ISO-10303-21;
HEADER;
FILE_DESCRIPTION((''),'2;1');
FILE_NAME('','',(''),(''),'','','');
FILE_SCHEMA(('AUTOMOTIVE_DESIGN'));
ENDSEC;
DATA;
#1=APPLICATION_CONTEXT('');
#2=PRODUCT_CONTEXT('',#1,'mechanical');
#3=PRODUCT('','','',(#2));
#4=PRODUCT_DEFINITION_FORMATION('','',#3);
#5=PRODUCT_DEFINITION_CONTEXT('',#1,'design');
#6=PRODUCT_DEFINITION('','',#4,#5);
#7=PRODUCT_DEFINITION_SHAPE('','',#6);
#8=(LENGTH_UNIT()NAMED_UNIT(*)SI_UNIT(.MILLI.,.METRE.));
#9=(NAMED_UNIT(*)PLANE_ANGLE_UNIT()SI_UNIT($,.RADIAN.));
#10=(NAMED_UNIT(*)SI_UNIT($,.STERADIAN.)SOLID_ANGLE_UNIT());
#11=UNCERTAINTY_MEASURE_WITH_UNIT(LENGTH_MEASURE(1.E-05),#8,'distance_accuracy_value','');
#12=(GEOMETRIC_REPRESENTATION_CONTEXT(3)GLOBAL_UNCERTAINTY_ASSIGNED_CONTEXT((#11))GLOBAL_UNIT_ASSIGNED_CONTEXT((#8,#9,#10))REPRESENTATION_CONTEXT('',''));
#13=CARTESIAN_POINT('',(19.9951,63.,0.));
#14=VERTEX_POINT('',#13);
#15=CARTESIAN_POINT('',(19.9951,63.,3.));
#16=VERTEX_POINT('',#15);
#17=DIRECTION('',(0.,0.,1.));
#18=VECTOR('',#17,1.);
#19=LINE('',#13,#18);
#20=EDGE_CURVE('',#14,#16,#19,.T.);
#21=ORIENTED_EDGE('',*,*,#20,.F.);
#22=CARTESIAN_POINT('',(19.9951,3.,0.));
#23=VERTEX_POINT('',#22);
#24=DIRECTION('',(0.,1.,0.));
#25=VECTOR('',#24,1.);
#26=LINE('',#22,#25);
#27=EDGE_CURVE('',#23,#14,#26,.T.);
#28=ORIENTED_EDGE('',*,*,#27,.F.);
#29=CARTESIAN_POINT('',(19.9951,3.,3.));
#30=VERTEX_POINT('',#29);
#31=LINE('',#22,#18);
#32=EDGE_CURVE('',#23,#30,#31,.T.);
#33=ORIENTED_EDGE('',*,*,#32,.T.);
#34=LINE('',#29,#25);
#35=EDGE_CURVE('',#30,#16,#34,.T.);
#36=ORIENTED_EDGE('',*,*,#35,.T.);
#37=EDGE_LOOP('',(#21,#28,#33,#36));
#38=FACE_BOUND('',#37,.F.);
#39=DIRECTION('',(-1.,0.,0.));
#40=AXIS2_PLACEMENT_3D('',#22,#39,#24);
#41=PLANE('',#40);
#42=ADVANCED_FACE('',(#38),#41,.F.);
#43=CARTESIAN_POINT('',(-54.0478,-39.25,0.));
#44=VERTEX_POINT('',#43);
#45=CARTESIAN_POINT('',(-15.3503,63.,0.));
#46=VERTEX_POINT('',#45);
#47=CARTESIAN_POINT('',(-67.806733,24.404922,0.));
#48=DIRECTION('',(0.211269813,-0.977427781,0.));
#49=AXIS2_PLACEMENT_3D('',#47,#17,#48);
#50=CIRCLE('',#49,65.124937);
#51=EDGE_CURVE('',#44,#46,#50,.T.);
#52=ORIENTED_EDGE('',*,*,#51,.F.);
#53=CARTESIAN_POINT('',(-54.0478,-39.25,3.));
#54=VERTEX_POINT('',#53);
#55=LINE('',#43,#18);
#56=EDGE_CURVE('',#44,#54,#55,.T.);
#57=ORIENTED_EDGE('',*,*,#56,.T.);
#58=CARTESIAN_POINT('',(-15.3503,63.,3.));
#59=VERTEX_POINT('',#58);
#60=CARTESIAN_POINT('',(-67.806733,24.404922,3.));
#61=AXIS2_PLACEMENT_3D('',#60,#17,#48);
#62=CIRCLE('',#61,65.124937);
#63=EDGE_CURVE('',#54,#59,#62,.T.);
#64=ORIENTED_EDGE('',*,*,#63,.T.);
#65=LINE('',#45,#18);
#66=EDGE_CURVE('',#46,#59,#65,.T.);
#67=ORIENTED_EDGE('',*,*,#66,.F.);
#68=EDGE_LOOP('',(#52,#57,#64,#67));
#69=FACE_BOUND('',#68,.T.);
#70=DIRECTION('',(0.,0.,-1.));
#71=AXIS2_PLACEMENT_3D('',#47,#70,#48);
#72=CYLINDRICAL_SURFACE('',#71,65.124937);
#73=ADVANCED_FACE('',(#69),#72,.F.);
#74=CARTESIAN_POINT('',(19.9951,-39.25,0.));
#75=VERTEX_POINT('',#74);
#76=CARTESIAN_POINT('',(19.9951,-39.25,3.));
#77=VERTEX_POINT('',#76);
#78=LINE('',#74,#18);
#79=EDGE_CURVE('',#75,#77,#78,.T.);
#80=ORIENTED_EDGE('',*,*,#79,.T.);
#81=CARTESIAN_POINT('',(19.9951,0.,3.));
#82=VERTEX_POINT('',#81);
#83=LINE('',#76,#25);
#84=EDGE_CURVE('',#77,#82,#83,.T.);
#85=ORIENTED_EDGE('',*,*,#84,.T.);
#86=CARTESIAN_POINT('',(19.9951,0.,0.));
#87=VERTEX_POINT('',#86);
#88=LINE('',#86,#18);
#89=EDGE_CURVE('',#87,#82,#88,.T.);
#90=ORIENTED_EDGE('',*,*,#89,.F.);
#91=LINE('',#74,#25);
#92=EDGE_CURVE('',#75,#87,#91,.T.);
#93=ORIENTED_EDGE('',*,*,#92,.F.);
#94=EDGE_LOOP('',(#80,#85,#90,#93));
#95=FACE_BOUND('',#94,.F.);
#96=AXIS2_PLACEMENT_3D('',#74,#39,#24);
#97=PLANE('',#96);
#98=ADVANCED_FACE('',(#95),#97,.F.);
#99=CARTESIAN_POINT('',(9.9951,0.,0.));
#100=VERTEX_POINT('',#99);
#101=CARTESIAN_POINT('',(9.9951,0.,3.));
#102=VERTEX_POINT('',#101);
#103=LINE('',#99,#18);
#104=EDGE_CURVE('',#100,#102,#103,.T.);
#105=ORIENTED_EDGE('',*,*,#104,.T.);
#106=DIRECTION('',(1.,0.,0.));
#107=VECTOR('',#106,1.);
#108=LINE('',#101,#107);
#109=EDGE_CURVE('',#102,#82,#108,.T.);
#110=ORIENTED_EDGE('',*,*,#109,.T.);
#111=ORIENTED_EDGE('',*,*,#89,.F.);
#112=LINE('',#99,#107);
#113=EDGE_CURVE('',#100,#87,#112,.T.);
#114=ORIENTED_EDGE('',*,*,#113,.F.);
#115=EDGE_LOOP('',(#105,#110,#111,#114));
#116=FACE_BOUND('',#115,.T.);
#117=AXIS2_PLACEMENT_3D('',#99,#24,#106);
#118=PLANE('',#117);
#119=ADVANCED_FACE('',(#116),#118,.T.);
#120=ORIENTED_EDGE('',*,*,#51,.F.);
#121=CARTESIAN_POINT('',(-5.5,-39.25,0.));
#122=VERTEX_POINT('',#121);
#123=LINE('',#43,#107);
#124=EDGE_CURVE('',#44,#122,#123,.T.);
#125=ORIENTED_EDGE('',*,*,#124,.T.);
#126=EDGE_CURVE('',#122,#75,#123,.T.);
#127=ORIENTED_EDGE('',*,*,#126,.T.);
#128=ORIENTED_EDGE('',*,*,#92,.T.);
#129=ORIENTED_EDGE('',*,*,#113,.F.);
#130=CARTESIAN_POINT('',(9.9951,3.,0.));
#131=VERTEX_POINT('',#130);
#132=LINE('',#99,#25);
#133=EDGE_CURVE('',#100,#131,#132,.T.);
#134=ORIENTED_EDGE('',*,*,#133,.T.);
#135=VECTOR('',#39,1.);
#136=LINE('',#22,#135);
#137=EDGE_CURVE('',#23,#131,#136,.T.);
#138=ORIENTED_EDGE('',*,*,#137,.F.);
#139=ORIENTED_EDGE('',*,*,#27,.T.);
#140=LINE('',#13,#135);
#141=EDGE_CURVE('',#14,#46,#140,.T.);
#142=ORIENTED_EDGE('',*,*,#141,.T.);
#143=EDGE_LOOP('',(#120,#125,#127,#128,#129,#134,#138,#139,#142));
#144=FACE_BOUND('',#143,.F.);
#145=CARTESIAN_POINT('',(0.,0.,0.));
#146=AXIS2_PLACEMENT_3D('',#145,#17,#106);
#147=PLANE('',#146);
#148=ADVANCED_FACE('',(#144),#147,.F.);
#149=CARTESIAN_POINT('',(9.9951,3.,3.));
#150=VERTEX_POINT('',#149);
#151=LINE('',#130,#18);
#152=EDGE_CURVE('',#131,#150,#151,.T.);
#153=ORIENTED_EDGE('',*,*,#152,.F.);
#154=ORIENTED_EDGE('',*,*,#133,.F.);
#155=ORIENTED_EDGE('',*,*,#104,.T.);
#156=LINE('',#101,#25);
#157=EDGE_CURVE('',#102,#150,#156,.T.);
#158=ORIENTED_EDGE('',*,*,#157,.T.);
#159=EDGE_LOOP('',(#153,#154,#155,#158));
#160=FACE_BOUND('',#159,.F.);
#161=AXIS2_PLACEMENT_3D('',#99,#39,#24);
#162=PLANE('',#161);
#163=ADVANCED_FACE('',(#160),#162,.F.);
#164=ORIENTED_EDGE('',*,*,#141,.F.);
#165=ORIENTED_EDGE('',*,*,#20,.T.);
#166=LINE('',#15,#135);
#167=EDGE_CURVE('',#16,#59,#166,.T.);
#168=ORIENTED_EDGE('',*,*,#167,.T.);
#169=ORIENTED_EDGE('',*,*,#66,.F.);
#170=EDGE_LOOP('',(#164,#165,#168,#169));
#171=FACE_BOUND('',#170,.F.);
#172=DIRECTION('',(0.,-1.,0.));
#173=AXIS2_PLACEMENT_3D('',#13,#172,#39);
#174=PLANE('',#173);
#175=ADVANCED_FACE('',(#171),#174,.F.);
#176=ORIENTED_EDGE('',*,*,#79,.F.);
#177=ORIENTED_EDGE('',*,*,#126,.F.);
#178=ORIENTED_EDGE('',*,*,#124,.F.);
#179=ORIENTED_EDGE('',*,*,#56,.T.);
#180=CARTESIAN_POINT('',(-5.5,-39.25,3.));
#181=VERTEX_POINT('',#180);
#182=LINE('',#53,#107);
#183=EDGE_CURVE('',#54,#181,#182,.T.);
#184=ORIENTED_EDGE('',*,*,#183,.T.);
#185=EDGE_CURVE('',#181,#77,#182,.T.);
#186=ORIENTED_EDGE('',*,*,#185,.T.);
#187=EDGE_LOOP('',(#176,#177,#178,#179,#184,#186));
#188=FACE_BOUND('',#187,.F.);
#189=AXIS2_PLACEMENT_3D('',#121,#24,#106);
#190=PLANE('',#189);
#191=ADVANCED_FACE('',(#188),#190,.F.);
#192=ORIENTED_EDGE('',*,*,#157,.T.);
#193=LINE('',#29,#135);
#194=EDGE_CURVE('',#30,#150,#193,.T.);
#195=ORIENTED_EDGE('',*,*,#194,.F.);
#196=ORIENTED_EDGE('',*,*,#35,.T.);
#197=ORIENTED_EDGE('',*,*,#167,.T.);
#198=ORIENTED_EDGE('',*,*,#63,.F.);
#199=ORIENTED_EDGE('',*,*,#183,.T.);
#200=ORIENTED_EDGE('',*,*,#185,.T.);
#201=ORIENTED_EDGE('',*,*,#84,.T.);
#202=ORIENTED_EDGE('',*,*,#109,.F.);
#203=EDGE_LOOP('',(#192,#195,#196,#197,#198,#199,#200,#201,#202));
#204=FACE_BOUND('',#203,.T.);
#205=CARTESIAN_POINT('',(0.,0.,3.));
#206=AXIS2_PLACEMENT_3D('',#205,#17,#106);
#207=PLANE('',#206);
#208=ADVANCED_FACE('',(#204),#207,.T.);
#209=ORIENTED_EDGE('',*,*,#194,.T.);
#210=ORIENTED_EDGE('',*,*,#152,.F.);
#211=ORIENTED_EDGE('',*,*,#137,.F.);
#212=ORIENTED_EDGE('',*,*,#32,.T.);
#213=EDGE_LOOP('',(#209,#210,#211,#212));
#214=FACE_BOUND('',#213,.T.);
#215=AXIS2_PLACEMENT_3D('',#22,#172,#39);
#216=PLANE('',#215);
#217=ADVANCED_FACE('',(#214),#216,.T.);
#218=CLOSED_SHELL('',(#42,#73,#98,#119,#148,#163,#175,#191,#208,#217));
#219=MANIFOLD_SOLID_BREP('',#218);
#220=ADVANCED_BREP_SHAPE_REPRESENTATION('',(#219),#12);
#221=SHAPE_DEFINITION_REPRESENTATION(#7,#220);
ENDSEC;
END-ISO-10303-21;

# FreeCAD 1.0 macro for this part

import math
import FreeCAD as App
import Part
import Sketcher
from FreeCAD import Vector

doc = App.newDocument("Part")
body = doc.addObject("PartDesign::Body", "Body")

# Sketch on XY plane
sketch1 = body.newObject("Sketcher::SketchObject", "Sketch")
sketch1.AttachmentSupport = (doc.getObject("XY_Plane"), [""])
sketch1.MapMode = "FlatFace"
sketch1.addGeometry([
    Part.ArcOfCircle(Part.Circle(Vector(-67.8068, 24.405, 0), Vector(0, 0, 1), 65.125027), math.radians(-77.80318), math.radians(36.343868)),  # 0
    Part.LineSegment(Vector(-54.0478, -39.25, 0), Vector(-5.5, -39.25, 0)),  # 1
    Part.LineSegment(Vector(-5.5, -39.25, 0), Vector(19.9951, -39.25, 0)),  # 2
    Part.LineSegment(Vector(19.9951, -39.25, 0), Vector(19.9951, 0, 0)),  # 3
    Part.LineSegment(Vector(19.9951, 0, 0), Vector(9.9951, 0, 0)),  # 4
    Part.LineSegment(Vector(9.9951, 0, 0), Vector(9.9951, 3, 0)),  # 5
    Part.LineSegment(Vector(9.9951, 3, 0), Vector(19.9951, 3, 0)),  # 6
    Part.LineSegment(Vector(19.9951, 3, 0), Vector(19.9951, 63, 0)),  # 7
    Part.LineSegment(Vector(19.9951, 63, 0), Vector(-15.3503, 63, 0)),  # 8
], False)
sketch1.addConstraint([
    Sketcher.Constraint("Coincident", 0, 1, 1, 1),
    Sketcher.Constraint("Coincident", 1, 2, 2, 1),
    Sketcher.Constraint("Coincident", 2, 2, 3, 1),
    Sketcher.Constraint("Coincident", 3, 2, 4, 1),
    Sketcher.Constraint("Coincident", 4, 2, 5, 1),
    Sketcher.Constraint("Coincident", 5, 2, 6, 1),
    Sketcher.Constraint("Coincident", 6, 2, 7, 1),
    Sketcher.Constraint("Coincident", 7, 2, 8, 1),
    Sketcher.Constraint("Coincident", 8, 2, 0, 2),
    Sketcher.Constraint("Horizontal", 1),
    Sketcher.Constraint("Horizontal", 2),
    Sketcher.Constraint("Vertical", 3),
    Sketcher.Constraint("Horizontal", 4),
    Sketcher.Constraint("Vertical", 5),
    Sketcher.Constraint("Horizontal", 6),
    Sketcher.Constraint("Vertical", 7),
    Sketcher.Constraint("Horizontal", 8),
    Sketcher.Constraint("PointOnObject", 3, 2, -1),
    Sketcher.Constraint("Vertical", 3, 2, 6, 2),
    Sketcher.Constraint("DistanceX", 4, 2, 4, 1, 10.0),
    Sketcher.Constraint("DistanceY", 7, 1, 7, 2, 60.0),
    Sketcher.Constraint("DistanceY", 5, 1, 5, 2, 3.0),
    Sketcher.Constraint("DistanceX", 8, 2, 8, 1, 35.3454),
    Sketcher.Constraint("Radius", 0, 65.125),
    Sketcher.Constraint("DistanceY", 3, 1, 3, 2, 39.25),
    Sketcher.Constraint("DistanceX", 1, 2, -1, 1, 5.5),
    Sketcher.Constraint("DistanceX", 2, 1, 2, 2, 25.495),
    Sketcher.Constraint("DistanceX", 1, 1, 1, 2, 48.5478),
])
pad1 = body.newObject("PartDesign::Pad", "Pad")
pad1.Profile = sketch1
pad1.Length = 3

doc.recompute()
